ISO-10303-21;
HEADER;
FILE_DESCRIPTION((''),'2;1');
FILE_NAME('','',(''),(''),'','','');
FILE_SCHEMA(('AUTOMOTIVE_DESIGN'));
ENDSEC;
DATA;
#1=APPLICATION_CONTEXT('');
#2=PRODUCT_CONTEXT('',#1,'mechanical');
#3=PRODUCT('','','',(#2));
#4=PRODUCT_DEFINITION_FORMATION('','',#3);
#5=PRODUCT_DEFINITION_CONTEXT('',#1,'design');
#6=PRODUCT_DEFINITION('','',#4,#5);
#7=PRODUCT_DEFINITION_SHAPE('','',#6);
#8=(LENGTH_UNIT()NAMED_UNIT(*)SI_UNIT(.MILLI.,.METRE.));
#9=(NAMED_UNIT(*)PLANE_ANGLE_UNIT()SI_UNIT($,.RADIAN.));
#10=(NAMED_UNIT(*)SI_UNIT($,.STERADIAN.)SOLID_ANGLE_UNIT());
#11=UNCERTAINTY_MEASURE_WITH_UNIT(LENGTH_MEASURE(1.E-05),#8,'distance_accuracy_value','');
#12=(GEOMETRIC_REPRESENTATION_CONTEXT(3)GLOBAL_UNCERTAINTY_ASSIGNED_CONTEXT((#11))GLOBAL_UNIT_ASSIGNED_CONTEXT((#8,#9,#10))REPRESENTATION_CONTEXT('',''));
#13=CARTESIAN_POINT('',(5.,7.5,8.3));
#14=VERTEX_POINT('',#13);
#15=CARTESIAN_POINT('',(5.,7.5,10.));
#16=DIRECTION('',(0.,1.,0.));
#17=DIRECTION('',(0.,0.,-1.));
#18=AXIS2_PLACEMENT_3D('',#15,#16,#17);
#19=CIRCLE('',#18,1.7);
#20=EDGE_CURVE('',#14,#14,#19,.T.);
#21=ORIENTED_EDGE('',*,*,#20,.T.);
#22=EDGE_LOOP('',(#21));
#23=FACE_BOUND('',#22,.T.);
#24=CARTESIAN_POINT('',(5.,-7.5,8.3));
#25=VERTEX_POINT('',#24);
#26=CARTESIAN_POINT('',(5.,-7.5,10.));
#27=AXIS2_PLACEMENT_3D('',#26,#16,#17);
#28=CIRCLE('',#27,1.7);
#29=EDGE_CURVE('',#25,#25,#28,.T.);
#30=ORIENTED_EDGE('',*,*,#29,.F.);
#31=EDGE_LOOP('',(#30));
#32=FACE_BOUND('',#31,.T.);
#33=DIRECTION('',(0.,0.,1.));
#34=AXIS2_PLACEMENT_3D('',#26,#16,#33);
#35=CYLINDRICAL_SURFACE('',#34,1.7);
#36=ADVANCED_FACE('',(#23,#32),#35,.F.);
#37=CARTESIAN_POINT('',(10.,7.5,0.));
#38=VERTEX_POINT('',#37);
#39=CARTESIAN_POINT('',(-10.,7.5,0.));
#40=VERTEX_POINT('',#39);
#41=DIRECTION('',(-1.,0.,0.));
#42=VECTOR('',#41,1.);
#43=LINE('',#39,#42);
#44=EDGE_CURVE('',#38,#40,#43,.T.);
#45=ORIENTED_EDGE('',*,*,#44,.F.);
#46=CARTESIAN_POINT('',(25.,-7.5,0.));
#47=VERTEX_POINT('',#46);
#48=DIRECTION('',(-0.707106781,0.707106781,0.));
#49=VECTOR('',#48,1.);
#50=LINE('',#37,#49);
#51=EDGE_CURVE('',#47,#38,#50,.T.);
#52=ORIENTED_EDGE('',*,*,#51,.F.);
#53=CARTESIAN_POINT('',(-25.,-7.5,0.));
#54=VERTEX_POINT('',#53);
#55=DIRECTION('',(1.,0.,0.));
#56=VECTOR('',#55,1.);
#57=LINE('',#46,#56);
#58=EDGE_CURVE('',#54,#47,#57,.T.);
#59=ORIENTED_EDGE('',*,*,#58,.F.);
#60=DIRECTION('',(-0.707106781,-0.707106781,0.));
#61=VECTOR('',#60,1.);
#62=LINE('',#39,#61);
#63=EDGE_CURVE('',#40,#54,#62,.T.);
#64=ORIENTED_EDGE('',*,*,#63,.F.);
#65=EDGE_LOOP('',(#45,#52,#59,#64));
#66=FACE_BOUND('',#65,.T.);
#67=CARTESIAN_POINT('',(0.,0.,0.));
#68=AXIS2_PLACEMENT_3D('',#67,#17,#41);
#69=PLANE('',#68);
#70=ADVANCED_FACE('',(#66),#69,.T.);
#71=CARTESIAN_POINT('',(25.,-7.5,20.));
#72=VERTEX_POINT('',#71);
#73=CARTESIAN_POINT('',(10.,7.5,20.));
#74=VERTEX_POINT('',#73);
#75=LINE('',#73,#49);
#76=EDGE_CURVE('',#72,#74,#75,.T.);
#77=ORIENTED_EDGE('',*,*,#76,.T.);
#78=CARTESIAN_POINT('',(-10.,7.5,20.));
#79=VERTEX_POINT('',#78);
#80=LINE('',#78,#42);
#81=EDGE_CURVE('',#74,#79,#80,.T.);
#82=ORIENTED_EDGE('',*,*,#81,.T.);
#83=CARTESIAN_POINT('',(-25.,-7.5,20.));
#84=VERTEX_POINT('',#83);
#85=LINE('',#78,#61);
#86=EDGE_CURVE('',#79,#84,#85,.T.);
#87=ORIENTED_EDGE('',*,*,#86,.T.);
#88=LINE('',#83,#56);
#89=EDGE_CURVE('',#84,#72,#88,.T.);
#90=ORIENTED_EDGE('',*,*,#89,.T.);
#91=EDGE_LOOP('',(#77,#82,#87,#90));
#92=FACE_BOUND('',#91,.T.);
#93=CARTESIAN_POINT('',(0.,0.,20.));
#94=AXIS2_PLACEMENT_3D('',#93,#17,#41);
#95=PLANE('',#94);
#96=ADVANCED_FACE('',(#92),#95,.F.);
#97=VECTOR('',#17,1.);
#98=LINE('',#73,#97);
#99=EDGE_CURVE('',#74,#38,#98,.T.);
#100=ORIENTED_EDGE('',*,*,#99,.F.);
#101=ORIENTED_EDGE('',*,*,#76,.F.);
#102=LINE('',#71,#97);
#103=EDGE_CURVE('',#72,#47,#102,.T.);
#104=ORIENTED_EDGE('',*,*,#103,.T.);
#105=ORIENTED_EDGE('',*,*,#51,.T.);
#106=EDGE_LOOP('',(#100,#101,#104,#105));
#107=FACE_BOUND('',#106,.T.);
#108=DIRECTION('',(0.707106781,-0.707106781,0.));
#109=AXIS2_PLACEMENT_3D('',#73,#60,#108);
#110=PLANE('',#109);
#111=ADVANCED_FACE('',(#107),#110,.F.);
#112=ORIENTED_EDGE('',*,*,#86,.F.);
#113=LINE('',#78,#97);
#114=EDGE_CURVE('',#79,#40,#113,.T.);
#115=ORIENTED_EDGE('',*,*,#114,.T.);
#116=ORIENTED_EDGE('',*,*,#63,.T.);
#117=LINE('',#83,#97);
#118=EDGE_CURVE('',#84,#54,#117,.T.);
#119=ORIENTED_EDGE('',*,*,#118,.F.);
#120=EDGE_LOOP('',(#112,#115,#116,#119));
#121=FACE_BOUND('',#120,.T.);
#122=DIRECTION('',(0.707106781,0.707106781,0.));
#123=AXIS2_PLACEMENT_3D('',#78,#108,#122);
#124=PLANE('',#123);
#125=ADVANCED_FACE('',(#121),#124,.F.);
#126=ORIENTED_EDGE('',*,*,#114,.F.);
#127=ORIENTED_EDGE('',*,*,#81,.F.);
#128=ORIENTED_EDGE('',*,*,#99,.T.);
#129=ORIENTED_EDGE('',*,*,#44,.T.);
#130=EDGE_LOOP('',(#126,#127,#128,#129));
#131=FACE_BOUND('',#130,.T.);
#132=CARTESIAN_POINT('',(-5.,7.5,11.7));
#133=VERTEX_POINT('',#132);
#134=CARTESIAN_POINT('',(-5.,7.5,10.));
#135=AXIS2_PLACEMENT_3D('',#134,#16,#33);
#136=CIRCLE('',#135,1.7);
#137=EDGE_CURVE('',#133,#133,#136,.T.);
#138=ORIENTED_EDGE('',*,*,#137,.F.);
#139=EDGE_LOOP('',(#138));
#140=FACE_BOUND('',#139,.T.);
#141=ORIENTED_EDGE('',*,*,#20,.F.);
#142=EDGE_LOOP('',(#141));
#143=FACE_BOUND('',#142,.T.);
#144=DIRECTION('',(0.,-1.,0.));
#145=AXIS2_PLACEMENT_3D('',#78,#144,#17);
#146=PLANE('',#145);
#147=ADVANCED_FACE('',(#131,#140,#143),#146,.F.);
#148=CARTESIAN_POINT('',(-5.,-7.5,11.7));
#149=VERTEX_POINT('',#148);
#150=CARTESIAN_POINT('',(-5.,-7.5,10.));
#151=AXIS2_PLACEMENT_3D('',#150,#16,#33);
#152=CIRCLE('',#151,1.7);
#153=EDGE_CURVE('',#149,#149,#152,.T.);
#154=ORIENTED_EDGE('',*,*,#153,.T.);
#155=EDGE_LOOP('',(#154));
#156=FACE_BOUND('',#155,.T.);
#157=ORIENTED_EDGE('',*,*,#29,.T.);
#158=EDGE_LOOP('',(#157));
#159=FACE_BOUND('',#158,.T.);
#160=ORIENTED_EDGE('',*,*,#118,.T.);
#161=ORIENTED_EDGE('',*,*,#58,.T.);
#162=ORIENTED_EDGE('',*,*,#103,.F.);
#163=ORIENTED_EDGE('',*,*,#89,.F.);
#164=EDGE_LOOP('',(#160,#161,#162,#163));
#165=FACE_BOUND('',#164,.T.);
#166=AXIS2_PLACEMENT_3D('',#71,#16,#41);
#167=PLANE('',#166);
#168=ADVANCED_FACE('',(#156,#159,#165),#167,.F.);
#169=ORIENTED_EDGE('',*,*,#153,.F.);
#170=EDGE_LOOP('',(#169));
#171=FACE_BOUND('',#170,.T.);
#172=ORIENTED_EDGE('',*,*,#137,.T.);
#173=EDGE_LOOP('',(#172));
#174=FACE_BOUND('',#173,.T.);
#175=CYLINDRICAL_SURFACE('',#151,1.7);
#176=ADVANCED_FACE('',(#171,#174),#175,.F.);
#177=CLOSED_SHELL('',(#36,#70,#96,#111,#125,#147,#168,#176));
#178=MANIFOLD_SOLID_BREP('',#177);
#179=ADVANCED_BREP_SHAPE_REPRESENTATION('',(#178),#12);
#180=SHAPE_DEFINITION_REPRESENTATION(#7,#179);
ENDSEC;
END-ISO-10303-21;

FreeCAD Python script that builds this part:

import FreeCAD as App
import Part
import Sketcher
from FreeCAD import Vector


def add_polygon(sketch, points):
    """Adds a closed chain of lines whose ends are joined by coincident constraints."""
    first, n = sketch.GeometryCount, len(points)
    for a, b in zip(points, points[1:] + points[:1]):
        sketch.addGeometry(Part.LineSegment(App.Vector(*a, 0), App.Vector(*b, 0)), False)
    for i in range(n):
        sketch.addConstraint(Sketcher.Constraint("Coincident", first + i, 2, first + (i + 1) % n, 1))

doc = App.newDocument("Part")
params = doc.addObject("Spreadsheet::Sheet", "Params")
for row, (alias, value) in enumerate([
    ("sketch1_width", "20 mm"),
    ("sketch1_width2", "50 mm"),
    ("pad1_length", "20 mm"),
    ("sketch2_diameter", "3.4 mm"),
], start=1):
    params.set(f"A{row}", alias)
    params.set(f"B{row}", "=" + value)
    params.setAlias(f"B{row}", alias)

body = doc.addObject("PartDesign::Body", "Body")

sketch1 = doc.addObject("Sketcher::SketchObject", "Sketch")
body.addObject(sketch1)
sketch1.AttachmentSupport = (doc.XY_Plane, [""])
sketch1.MapMode = "FlatFace"
add_polygon(sketch1, [(25, -8), (10, 8), (-10, 8), (-25, -8)])
sketch1.addConstraint([
    Sketcher.Constraint("Horizontal", 1),
    Sketcher.Constraint("Horizontal", 3),
    Sketcher.Constraint("Perpendicular", 0, 2),
    Sketcher.Constraint("Equal", 0, 2),
    Sketcher.Constraint("DistanceX", 1, 2, 1, 1, 20.0),
    Sketcher.Constraint("DistanceX", 3, 1, 3, 2, 50.0),
    Sketcher.Constraint("DistanceX", -1, 1, 0, 2, 10.0),
    Sketcher.Constraint("DistanceY", -1, 1, 0, 2, 7.5),
])
sketch1.setExpression("Constraints[8]", "Params.sketch1_width")
sketch1.setExpression("Constraints[9]", "Params.sketch1_width2")
pad1 = doc.addObject("PartDesign::Pad", "Pad")
body.addObject(pad1)
pad1.Profile = sketch1
pad1.setExpression("Length", "Params.pad1_length")

sketch2 = doc.addObject("Sketcher::SketchObject", "Sketch001")
body.addObject(sketch2)
sketch2.AttachmentSupport = (doc.XZ_Plane, [""])
sketch2.MapMode = "FlatFace"
sketch2.AttachmentOffset = App.Placement(Vector(0, 0, -7.5), App.Rotation())
sketch2.addGeometry([
    Part.Circle(Vector(-5, 10, 0), Vector(0, 0, 1), 1.7),
    Part.Circle(Vector(5, 10, 0), Vector(0, 0, 1), 1.7),
], False)
sketch2.addConstraint([
    Sketcher.Constraint("Equal", 0, 1),
    Sketcher.Constraint("Symmetric", 0, 3, 1, 3, -2),
    Sketcher.Constraint("Diameter", 0, 3.4),
    Sketcher.Constraint("DistanceX", 0, 3, -1, 1, 5.0),
    Sketcher.Constraint("DistanceY", -1, 1, 0, 3, 10.0),
])
sketch2.setExpression("Constraints[2]", "Params.sketch2_diameter")
pocket1 = doc.addObject("PartDesign::Pocket", "Pocket")
body.addObject(pocket1)
pocket1.Profile = sketch2
pocket1.Type = "ThroughAll"
pocket1.Reversed = True

doc.recompute()
